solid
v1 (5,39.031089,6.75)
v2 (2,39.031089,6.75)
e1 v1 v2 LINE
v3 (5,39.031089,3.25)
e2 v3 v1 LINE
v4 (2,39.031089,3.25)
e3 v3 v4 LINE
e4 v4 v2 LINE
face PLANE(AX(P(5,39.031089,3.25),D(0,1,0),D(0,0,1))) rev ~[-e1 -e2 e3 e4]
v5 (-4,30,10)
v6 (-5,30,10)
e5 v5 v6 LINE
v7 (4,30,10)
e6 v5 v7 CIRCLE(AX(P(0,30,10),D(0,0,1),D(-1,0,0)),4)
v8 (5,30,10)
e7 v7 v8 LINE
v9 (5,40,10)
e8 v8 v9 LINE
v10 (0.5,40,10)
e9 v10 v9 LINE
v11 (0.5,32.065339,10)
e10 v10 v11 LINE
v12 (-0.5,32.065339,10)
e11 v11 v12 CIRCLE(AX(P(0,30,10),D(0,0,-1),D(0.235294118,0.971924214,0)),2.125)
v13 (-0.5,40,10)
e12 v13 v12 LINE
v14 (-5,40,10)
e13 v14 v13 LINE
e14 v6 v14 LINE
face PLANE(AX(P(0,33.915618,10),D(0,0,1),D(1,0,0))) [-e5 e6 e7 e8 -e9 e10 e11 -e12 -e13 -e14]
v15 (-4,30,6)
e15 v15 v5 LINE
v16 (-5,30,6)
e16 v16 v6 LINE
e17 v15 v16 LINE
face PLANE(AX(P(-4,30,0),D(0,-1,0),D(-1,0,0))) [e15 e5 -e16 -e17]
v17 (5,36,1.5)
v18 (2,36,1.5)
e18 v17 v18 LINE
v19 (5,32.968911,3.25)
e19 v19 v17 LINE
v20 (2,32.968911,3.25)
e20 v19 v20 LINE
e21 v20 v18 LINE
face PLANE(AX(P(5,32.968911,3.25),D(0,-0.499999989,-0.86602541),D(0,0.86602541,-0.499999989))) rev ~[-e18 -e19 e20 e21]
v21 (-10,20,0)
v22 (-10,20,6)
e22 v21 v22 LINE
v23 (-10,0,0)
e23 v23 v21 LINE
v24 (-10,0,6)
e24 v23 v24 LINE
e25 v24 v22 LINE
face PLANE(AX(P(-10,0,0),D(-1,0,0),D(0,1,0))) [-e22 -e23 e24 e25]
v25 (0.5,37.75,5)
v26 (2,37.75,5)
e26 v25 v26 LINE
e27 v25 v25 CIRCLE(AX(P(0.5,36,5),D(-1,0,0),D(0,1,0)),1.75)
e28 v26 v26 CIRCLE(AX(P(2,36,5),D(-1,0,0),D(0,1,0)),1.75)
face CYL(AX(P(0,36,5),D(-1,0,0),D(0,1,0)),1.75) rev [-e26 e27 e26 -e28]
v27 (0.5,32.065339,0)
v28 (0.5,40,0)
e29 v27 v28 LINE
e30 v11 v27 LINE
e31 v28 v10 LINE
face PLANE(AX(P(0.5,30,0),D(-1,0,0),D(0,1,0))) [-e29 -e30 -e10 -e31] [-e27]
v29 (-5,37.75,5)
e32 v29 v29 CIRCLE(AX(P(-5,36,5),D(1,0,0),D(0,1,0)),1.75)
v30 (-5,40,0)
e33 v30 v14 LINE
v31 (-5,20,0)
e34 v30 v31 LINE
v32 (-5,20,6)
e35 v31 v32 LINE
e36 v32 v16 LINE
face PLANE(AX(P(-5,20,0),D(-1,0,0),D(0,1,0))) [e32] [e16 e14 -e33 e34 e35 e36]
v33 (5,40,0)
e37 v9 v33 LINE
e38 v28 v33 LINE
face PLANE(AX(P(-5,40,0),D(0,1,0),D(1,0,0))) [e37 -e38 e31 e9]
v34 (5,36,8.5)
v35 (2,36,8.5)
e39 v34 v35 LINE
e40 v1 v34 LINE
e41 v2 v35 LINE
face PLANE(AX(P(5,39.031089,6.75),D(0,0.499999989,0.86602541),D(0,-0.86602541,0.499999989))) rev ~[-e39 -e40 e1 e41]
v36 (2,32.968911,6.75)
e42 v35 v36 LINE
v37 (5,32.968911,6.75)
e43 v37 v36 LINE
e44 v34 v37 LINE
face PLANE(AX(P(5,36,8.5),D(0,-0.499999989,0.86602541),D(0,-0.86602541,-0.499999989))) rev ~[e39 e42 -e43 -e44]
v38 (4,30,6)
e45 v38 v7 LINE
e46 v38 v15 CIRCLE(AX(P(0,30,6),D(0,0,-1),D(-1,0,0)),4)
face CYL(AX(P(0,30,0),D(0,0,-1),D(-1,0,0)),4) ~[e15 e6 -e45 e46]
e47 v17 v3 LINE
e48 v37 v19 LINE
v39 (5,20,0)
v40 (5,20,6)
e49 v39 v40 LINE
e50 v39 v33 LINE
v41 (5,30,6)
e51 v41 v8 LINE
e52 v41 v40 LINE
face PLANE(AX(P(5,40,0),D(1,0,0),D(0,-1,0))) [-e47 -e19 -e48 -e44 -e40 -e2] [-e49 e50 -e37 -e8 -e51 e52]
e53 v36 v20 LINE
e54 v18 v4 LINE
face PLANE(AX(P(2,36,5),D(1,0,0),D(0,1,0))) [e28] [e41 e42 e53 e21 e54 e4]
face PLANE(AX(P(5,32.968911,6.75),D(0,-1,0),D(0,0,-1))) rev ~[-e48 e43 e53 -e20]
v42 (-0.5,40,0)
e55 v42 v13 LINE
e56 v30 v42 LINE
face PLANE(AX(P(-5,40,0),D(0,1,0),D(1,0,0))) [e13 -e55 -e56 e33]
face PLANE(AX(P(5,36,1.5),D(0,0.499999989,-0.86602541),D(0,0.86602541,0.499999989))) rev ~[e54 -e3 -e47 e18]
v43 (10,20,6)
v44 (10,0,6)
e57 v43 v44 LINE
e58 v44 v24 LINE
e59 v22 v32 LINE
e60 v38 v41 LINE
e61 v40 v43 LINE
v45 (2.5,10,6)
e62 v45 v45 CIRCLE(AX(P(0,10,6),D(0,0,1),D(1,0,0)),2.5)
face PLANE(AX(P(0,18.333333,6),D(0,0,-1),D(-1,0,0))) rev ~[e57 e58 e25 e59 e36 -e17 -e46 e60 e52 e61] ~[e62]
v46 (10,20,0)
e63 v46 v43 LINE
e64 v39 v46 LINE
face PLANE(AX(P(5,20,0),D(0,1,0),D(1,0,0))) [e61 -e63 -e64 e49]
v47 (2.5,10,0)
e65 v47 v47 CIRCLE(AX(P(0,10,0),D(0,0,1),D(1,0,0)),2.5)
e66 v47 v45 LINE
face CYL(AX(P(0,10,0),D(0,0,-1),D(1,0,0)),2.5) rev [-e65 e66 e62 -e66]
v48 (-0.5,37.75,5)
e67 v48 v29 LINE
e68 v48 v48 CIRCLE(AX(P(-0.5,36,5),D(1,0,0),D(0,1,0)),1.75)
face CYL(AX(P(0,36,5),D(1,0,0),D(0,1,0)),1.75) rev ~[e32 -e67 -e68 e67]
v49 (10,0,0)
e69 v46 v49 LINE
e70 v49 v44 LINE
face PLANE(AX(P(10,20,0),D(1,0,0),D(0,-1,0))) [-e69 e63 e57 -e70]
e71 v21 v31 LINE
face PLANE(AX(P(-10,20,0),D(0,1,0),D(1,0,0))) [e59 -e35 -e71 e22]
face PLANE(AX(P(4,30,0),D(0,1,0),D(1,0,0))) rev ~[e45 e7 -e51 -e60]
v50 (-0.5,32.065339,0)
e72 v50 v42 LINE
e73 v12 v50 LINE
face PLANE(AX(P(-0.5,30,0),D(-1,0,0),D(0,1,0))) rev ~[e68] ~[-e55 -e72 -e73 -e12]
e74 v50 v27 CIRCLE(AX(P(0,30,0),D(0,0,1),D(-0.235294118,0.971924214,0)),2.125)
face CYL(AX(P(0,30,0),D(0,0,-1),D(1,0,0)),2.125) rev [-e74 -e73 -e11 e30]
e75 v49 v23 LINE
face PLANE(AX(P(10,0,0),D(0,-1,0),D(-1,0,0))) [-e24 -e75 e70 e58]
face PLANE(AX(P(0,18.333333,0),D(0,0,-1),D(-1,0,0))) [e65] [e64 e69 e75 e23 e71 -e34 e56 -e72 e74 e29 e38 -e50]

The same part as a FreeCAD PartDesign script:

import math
import FreeCAD as App
import Part
import Sketcher
from FreeCAD import Vector
Q = App.Units.Quantity

doc = App.newDocument("Part")
body = doc.addObject("PartDesign::Body", "Body")

# Sketch on XY plane
sketch1 = body.newObject("Sketcher::SketchObject", "Sketch")
sketch1.AttachmentSupport = (doc.getObject("XY_Plane"), [""])
sketch1.MapMode = "FlatFace"
sketch1.addGeometry([
    Part.LineSegment(Vector(5, 40, 0), Vector(-5, 40, 0)),  # 0
    Part.LineSegment(Vector(-5, 40, 0), Vector(-5, 20, 0)),  # 1
    Part.LineSegment(Vector(-5, 20, 0), Vector(-10, 20, 0)),  # 2
    Part.LineSegment(Vector(-10, 20, 0), Vector(-10, 0, 0)),  # 3
    Part.LineSegment(Vector(-10, 0, 0), Vector(10, 0, 0)),  # 4
    Part.LineSegment(Vector(10, 0, 0), Vector(10, 20, 0)),  # 5
    Part.LineSegment(Vector(10, 20, 0), Vector(5, 20, 0)),  # 6
    Part.LineSegment(Vector(5, 20, 0), Vector(5, 40, 0)),  # 7
    Part.Circle(Vector(0, 10, 0), Vector(0, 0, 1), 2.5),  # 8
    Part.Circle(Vector(0, 30, 0), Vector(0, 0, 1), 2.1),  # 9
], False)
sketch1.addConstraint([
    Sketcher.Constraint("Coincident", 0, 2, 1, 1),
    Sketcher.Constraint("Coincident", 1, 2, 2, 1),
    Sketcher.Constraint("Coincident", 2, 2, 3, 1),
    Sketcher.Constraint("Coincident", 3, 2, 4, 1),
    Sketcher.Constraint("Coincident", 4, 2, 5, 1),
    Sketcher.Constraint("Coincident", 5, 2, 6, 1),
    Sketcher.Constraint("Coincident", 6, 2, 7, 1),
    Sketcher.Constraint("Coincident", 7, 2, 0, 1),
    Sketcher.Constraint("Horizontal", 0),
    Sketcher.Constraint("Vertical", 1),
    Sketcher.Constraint("Horizontal", 2),
    Sketcher.Constraint("Vertical", 3),
    Sketcher.Constraint("Horizontal", 4),
    Sketcher.Constraint("Vertical", 5),
    Sketcher.Constraint("Horizontal", 6),
    Sketcher.Constraint("Vertical", 7),
    Sketcher.Constraint("Symmetric", 3, 2, 4, 2, -1, 1),
    Sketcher.Constraint("Symmetric", 1, 2, 6, 2, -2),
    Sketcher.Constraint("PointOnObject", 8, 3, -2),
    Sketcher.Constraint("PointOnObject", 9, 3, -2),
    Sketcher.Constraint("Equal", 4, 1),
    Sketcher.Constraint("Equal", 1, 3),
    Sketcher.Constraint("Diameter", 8, 5.0),
    Sketcher.Constraint("Diameter", 9, 4.25),
    Sketcher.Constraint("DistanceX", 0, 2, 0, 1, 10.0),
    Sketcher.Constraint("DistanceX", 2, 2, 2, 1, 5.0),
    Sketcher.Constraint("DistanceY", -1, 1, 8, 3, 10.0),
    Sketcher.Constraint("DistanceY", -1, 1, 9, 3, 30.0),
])
pad1 = body.newObject("PartDesign::Pad", "Pad")
pad1.Profile = sketch1
pad1.Length = 6

# Sketch on XY plane
sketch2 = body.newObject("Sketcher::SketchObject", "Sketch001")
sketch2.AttachmentSupport = (doc.getObject("XY_Plane"), [""])
sketch2.MapMode = "FlatFace"
sketch2.addGeometry([
    Part.ArcOfCircle(Part.Circle(Vector(0, 30, 0), Vector(0, 0, 1), 4), math.radians(180), math.radians(360)),  # 0
    Part.LineSegment(Vector(4, 30, 0), Vector(5, 30, 0)),  # 1
    Part.LineSegment(Vector(5, 30, 0), Vector(5, 40, 0)),  # 2
    Part.LineSegment(Vector(5, 40, 0), Vector(-5, 40, 0)),  # 3
    Part.LineSegment(Vector(-5, 40, 0), Vector(-5, 30, 0)),  # 4
    Part.LineSegment(Vector(-5, 30, 0), Vector(-4, 30, 0)),  # 5
    Part.Circle(Vector(0, 30, 0), Vector(0, 0, 1), 2.1),  # 6
], False)
sketch2.addConstraint([
    Sketcher.Constraint("Coincident", 0, 2, 1, 1),
    Sketcher.Constraint("Coincident", 1, 2, 2, 1),
    Sketcher.Constraint("Coincident", 2, 2, 3, 1),
    Sketcher.Constraint("Coincident", 3, 2, 4, 1),
    Sketcher.Constraint("Coincident", 4, 2, 5, 1),
    Sketcher.Constraint("Coincident", 5, 2, 0, 1),
    Sketcher.Constraint("Horizontal", 1),
    Sketcher.Constraint("Vertical", 2),
    Sketcher.Constraint("Horizontal", 3),
    Sketcher.Constraint("Vertical", 4),
    Sketcher.Constraint("Horizontal", 5),
    Sketcher.Constraint("Coincident", 6, 3, 0, 3),
    Sketcher.Constraint("Symmetric", 1, 2, 4, 2, -2),
    Sketcher.Constraint("PointOnObject", 0, 3, -2),
    Sketcher.Constraint("Horizontal", 6, 3, 0, 2),
    Sketcher.Constraint("Equal", 3, 2),
    Sketcher.Constraint("Radius", 0, 4.0),
    Sketcher.Constraint("Diameter", 6, 4.25),
    Sketcher.Constraint("DistanceX", 1, 1, 1, 2, 1.0),
    Sketcher.Constraint("DistanceY", -1, 1, 0, 3, 30.0),
])
pad2 = body.newObject("PartDesign::Pad", "Pad001")
pad2.Profile = sketch2
pad2.Length = 10

# Sketch on XY plane
sketch3 = body.newObject("Sketcher::SketchObject", "Sketch002")
sketch3.AttachmentSupport = (doc.getObject("XY_Plane"), [""])
sketch3.MapMode = "FlatFace"
sketch3.addGeometry([
    Part.LineSegment(Vector(-0.5, 50, 0), Vector(-0.5, 30, 0)),
    Part.LineSegment(Vector(-0.5, 30, 0), Vector(0.5, 30, 0)),
    Part.LineSegment(Vector(0.5, 30, 0), Vector(0.5, 50, 0)),
    Part.LineSegment(Vector(0.5, 50, 0), Vector(-0.5, 50, 0)),
], False)
sketch3.addConstraint([
    Sketcher.Constraint("Coincident", 0, 2, 1, 1),
    Sketcher.Constraint("Coincident", 1, 2, 2, 1),
    Sketcher.Constraint("Coincident", 2, 2, 3, 1),
    Sketcher.Constraint("Coincident", 3, 2, 0, 1),
    Sketcher.Constraint("Vertical", 0),
    Sketcher.Constraint("Horizontal", 1),
    Sketcher.Constraint("Vertical", 2),
    Sketcher.Constraint("Horizontal", 3),
    Sketcher.Constraint("DistanceX", 1, 1, 1, 2, 1.0),
    Sketcher.Constraint("DistanceY", 0, 2, 0, 1, 20.0),
    Sketcher.Constraint("DistanceY", -1, 1, 0, 2, 30.0),
    Sketcher.Constraint("DistanceX", 0, 2, -1, 1, 0.5),
])
pocket1 = body.newObject("PartDesign::Pocket", "Pocket")
pocket1.Profile = sketch3
pocket1.Type = "ThroughAll"
pocket1.Reversed = True

# Sketch on YZ plane
sketch4 = body.newObject("Sketcher::SketchObject", "Sketch003")
sketch4.AttachmentSupport = (doc.getObject("YZ_Plane"), [""])
sketch4.MapMode = "FlatFace"
sketch4.addGeometry(Part.Circle(Vector(36, 5, 0), Vector(0, 0, 1), 1.8), False)
sketch4.addConstraint([
    Sketcher.Constraint("Diameter", 0, 3.5),
    Sketcher.Constraint("DistanceX", -1, 1, 0, 3, 36.0),
    Sketcher.Constraint("DistanceY", -1, 1, 0, 3, 5.0),
])
pocket2 = body.newObject("PartDesign::Pocket", "Pocket001")
pocket2.Profile = sketch4
pocket2.Type = "ThroughAll"
pocket2.Midplane = True

# Sketch on YZ plane
sketch5 = body.newObject("Sketcher::SketchObject", "Sketch004")
sketch5.AttachmentSupport = (doc.getObject("YZ_Plane"), [""])
sketch5.MapMode = "FlatFace"
sketch5.AttachmentOffset = App.Placement(Vector(0, 0, 5), App.Rotation())
sketch5.addGeometry([
    Part.LineSegment(Vector(39, 3.2, 0), Vector(39, 6.8, 0)),  # 0
    Part.LineSegment(Vector(39, 6.8, 0), Vector(36, 8.5, 0)),  # 1
    Part.LineSegment(Vector(36, 8.5, 0), Vector(33, 6.8, 0)),  # 2
    Part.LineSegment(Vector(33, 6.8, 0), Vector(33, 3.2, 0)),  # 3
    Part.LineSegment(Vector(33, 3.2, 0), Vector(36, 1.5, 0)),  # 4
    Part.LineSegment(Vector(36, 1.5, 0), Vector(39, 3.2, 0)),  # 5
], False)
sketch5.addConstraint([
    Sketcher.Constraint("Coincident", 0, 2, 1, 1),
    Sketcher.Constraint("Coincident", 1, 2, 2, 1),
    Sketcher.Constraint("Coincident", 2, 2, 3, 1),
    Sketcher.Constraint("Coincident", 3, 2, 4, 1),
    Sketcher.Constraint("Coincident", 4, 2, 5, 1),
    Sketcher.Constraint("Coincident", 5, 2, 0, 1),
    Sketcher.Constraint("Vertical", 0),
    Sketcher.Constraint("Vertical", 3),
    Sketcher.Constraint("Parallel", 1, 4),
    Sketcher.Constraint("Parallel", 2, 5),
    Sketcher.Constraint("Horizontal", 0, 2, 2, 2),
    Sketcher.Constraint("Horizontal", 3, 2, 5, 2),
    Sketcher.Constraint("Vertical", 1, 2, 4, 2),
    Sketcher.Constraint("Angle", 1, Q("150.000001 deg")),
    Sketcher.Constraint("DistanceY", 0, 1, 0, 2, 3.5),
    Sketcher.Constraint("DistanceX", -1, 1, 1, 2, 36.0),
    Sketcher.Constraint("DistanceY", 4, 2, 1, 2, 7.0),
    Sketcher.Constraint("DistanceY", -1, 1, 1, 2, 8.5),
])
pocket3 = body.newObject("PartDesign::Pocket", "Pocket002")
pocket3.Profile = sketch5
pocket3.Length = 3

doc.recompute()
